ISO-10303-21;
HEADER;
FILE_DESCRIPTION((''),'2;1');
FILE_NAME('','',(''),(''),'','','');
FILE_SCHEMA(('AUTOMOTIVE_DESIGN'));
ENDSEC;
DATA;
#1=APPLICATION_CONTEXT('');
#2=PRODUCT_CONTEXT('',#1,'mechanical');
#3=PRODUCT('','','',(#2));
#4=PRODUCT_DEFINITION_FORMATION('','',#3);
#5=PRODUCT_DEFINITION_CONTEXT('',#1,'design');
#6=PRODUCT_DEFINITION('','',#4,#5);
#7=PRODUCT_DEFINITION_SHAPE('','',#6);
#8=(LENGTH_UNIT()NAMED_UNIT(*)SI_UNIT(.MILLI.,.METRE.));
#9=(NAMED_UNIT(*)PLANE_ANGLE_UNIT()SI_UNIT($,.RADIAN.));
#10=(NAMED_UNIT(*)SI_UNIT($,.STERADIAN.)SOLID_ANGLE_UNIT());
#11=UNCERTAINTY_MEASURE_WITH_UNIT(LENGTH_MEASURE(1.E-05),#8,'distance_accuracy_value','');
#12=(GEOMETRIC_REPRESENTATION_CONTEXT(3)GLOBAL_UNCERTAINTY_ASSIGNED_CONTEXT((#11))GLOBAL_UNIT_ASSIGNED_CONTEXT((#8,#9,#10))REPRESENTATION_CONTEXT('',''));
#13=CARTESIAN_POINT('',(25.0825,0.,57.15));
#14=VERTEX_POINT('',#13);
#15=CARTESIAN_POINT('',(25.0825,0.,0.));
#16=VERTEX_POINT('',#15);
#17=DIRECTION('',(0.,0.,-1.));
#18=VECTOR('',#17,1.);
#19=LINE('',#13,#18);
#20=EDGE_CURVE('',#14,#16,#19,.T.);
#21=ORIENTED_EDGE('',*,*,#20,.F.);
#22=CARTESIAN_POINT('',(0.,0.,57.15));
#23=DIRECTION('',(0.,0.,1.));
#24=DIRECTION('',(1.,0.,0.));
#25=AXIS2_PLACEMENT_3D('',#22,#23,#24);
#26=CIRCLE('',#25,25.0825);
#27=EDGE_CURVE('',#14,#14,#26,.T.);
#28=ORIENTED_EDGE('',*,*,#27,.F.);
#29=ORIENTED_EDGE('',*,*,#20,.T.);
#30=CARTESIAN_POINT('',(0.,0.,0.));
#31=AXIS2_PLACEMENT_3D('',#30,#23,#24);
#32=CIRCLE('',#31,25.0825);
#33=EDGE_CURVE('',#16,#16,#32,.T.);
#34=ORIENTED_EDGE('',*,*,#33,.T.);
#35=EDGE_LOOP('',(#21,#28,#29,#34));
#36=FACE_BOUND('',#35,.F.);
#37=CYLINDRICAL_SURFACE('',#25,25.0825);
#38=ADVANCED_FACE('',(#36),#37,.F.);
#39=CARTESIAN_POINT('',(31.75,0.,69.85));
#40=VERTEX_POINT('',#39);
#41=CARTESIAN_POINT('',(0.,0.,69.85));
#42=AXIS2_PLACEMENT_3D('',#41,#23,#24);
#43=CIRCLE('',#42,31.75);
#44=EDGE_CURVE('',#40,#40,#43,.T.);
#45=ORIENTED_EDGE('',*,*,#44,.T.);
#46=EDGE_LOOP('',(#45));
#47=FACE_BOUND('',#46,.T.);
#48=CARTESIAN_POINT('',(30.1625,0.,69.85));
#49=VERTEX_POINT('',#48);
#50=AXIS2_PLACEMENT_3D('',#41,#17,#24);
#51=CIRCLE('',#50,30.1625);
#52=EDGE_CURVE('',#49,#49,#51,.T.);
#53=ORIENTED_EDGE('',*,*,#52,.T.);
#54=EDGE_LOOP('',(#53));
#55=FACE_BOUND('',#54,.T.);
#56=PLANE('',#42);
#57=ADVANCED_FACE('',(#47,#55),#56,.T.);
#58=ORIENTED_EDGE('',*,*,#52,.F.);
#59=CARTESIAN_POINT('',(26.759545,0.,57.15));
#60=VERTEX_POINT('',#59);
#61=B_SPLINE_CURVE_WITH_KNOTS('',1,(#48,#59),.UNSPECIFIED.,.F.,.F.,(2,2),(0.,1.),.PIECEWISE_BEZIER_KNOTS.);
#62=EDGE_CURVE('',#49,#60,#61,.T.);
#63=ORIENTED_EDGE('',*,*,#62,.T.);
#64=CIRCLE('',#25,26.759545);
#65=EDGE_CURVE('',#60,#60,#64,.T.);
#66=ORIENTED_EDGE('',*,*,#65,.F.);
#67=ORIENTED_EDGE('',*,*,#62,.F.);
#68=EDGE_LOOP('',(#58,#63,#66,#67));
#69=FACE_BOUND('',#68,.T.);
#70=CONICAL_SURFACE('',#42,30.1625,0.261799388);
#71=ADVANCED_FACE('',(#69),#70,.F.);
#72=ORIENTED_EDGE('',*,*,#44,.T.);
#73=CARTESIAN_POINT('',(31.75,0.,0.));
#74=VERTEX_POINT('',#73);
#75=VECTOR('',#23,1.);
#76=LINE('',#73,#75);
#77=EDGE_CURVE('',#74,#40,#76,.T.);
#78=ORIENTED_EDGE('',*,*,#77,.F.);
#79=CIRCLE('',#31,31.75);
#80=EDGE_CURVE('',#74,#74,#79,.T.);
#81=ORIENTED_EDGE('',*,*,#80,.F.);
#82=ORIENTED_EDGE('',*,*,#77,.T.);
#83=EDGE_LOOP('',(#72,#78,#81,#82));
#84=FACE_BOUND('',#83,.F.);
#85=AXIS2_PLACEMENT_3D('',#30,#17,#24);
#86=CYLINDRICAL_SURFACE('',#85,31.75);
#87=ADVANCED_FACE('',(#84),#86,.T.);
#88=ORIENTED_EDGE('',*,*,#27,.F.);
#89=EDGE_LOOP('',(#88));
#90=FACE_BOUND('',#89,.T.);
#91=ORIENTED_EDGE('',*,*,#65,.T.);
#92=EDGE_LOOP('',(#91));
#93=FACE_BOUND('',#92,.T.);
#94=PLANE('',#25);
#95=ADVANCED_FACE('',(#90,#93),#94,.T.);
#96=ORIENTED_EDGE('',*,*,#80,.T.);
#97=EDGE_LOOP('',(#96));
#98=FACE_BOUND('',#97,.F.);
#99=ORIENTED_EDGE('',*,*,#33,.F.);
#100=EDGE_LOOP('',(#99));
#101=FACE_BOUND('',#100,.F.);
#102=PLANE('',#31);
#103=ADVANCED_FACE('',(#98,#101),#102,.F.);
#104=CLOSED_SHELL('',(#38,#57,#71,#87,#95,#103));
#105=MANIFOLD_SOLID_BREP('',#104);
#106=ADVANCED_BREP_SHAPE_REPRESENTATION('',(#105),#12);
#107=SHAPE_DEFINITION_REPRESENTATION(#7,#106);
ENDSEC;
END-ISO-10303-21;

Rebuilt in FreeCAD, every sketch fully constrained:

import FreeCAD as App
import Part
import Sketcher
from FreeCAD import Vector
Q = App.Units.Quantity

doc = App.newDocument("Part")
body = doc.addObject("PartDesign::Body", "Body")

sketch1 = body.newObject("Sketcher::SketchObject", "Sketch")
sketch1.AttachmentSupport = (doc.getObject("XY_Plane"), [""])
sketch1.MapMode = "FlatFace"
sketch1.addGeometry(Part.Circle(Vector(0, 0, 0), Vector(0, 0, 1), 32), False)
sketch1.addConstraint(Sketcher.Constraint("Coincident", 0, 3, -1, 1))
sketch1.addConstraint(Sketcher.Constraint("Diameter", 0, Q("2.5 in")))
pad1 = body.newObject("PartDesign::Pad", "Pad")
pad1.Profile = sketch1
pad1.Length = Q("2.75 in")

sketch2 = body.newObject("Sketcher::SketchObject", "Sketch001")
sketch2.AttachmentSupport = (doc.getObject("XY_Plane"), [""])
sketch2.MapMode = "FlatFace"
sketch2.AttachmentOffset = App.Placement(Vector(0, 0, 2.75 * 25.4), App.Rotation())
sketch2.addGeometry(Part.Circle(Vector(0, 0, 0), Vector(0, 0, 1), 30), False)
sketch2.addConstraint(Sketcher.Constraint("Coincident", 0, 3, -1, 1))
sketch2.addConstraint(Sketcher.Constraint("Diameter", 0, Q("2.375 in")))
pocket1 = body.newObject("PartDesign::Pocket", "Pocket")
pocket1.Profile = sketch2
pocket1.Length = Q("0.5 in")
pocket1.TaperAngle = -15

sketch3 = body.newObject("Sketcher::SketchObject", "Sketch002")
sketch3.AttachmentSupport = (doc.getObject("XY_Plane"), [""])
sketch3.MapMode = "FlatFace"
sketch3.AttachmentOffset = App.Placement(Vector(0, 0, 2.25 * 25.4), App.Rotation())
sketch3.addGeometry(Part.Circle(Vector(0, 0, 0), Vector(0, 0, 1), 25), False)
sketch3.addConstraint(Sketcher.Constraint("Coincident", 0, 3, -1, 1))
sketch3.addConstraint(Sketcher.Constraint("Diameter", 0, Q("1.975 in")))
pocket2 = body.newObject("PartDesign::Pocket", "Pocket001")
pocket2.Profile = sketch3
pocket2.Type = "ThroughAll"

doc.recompute()
